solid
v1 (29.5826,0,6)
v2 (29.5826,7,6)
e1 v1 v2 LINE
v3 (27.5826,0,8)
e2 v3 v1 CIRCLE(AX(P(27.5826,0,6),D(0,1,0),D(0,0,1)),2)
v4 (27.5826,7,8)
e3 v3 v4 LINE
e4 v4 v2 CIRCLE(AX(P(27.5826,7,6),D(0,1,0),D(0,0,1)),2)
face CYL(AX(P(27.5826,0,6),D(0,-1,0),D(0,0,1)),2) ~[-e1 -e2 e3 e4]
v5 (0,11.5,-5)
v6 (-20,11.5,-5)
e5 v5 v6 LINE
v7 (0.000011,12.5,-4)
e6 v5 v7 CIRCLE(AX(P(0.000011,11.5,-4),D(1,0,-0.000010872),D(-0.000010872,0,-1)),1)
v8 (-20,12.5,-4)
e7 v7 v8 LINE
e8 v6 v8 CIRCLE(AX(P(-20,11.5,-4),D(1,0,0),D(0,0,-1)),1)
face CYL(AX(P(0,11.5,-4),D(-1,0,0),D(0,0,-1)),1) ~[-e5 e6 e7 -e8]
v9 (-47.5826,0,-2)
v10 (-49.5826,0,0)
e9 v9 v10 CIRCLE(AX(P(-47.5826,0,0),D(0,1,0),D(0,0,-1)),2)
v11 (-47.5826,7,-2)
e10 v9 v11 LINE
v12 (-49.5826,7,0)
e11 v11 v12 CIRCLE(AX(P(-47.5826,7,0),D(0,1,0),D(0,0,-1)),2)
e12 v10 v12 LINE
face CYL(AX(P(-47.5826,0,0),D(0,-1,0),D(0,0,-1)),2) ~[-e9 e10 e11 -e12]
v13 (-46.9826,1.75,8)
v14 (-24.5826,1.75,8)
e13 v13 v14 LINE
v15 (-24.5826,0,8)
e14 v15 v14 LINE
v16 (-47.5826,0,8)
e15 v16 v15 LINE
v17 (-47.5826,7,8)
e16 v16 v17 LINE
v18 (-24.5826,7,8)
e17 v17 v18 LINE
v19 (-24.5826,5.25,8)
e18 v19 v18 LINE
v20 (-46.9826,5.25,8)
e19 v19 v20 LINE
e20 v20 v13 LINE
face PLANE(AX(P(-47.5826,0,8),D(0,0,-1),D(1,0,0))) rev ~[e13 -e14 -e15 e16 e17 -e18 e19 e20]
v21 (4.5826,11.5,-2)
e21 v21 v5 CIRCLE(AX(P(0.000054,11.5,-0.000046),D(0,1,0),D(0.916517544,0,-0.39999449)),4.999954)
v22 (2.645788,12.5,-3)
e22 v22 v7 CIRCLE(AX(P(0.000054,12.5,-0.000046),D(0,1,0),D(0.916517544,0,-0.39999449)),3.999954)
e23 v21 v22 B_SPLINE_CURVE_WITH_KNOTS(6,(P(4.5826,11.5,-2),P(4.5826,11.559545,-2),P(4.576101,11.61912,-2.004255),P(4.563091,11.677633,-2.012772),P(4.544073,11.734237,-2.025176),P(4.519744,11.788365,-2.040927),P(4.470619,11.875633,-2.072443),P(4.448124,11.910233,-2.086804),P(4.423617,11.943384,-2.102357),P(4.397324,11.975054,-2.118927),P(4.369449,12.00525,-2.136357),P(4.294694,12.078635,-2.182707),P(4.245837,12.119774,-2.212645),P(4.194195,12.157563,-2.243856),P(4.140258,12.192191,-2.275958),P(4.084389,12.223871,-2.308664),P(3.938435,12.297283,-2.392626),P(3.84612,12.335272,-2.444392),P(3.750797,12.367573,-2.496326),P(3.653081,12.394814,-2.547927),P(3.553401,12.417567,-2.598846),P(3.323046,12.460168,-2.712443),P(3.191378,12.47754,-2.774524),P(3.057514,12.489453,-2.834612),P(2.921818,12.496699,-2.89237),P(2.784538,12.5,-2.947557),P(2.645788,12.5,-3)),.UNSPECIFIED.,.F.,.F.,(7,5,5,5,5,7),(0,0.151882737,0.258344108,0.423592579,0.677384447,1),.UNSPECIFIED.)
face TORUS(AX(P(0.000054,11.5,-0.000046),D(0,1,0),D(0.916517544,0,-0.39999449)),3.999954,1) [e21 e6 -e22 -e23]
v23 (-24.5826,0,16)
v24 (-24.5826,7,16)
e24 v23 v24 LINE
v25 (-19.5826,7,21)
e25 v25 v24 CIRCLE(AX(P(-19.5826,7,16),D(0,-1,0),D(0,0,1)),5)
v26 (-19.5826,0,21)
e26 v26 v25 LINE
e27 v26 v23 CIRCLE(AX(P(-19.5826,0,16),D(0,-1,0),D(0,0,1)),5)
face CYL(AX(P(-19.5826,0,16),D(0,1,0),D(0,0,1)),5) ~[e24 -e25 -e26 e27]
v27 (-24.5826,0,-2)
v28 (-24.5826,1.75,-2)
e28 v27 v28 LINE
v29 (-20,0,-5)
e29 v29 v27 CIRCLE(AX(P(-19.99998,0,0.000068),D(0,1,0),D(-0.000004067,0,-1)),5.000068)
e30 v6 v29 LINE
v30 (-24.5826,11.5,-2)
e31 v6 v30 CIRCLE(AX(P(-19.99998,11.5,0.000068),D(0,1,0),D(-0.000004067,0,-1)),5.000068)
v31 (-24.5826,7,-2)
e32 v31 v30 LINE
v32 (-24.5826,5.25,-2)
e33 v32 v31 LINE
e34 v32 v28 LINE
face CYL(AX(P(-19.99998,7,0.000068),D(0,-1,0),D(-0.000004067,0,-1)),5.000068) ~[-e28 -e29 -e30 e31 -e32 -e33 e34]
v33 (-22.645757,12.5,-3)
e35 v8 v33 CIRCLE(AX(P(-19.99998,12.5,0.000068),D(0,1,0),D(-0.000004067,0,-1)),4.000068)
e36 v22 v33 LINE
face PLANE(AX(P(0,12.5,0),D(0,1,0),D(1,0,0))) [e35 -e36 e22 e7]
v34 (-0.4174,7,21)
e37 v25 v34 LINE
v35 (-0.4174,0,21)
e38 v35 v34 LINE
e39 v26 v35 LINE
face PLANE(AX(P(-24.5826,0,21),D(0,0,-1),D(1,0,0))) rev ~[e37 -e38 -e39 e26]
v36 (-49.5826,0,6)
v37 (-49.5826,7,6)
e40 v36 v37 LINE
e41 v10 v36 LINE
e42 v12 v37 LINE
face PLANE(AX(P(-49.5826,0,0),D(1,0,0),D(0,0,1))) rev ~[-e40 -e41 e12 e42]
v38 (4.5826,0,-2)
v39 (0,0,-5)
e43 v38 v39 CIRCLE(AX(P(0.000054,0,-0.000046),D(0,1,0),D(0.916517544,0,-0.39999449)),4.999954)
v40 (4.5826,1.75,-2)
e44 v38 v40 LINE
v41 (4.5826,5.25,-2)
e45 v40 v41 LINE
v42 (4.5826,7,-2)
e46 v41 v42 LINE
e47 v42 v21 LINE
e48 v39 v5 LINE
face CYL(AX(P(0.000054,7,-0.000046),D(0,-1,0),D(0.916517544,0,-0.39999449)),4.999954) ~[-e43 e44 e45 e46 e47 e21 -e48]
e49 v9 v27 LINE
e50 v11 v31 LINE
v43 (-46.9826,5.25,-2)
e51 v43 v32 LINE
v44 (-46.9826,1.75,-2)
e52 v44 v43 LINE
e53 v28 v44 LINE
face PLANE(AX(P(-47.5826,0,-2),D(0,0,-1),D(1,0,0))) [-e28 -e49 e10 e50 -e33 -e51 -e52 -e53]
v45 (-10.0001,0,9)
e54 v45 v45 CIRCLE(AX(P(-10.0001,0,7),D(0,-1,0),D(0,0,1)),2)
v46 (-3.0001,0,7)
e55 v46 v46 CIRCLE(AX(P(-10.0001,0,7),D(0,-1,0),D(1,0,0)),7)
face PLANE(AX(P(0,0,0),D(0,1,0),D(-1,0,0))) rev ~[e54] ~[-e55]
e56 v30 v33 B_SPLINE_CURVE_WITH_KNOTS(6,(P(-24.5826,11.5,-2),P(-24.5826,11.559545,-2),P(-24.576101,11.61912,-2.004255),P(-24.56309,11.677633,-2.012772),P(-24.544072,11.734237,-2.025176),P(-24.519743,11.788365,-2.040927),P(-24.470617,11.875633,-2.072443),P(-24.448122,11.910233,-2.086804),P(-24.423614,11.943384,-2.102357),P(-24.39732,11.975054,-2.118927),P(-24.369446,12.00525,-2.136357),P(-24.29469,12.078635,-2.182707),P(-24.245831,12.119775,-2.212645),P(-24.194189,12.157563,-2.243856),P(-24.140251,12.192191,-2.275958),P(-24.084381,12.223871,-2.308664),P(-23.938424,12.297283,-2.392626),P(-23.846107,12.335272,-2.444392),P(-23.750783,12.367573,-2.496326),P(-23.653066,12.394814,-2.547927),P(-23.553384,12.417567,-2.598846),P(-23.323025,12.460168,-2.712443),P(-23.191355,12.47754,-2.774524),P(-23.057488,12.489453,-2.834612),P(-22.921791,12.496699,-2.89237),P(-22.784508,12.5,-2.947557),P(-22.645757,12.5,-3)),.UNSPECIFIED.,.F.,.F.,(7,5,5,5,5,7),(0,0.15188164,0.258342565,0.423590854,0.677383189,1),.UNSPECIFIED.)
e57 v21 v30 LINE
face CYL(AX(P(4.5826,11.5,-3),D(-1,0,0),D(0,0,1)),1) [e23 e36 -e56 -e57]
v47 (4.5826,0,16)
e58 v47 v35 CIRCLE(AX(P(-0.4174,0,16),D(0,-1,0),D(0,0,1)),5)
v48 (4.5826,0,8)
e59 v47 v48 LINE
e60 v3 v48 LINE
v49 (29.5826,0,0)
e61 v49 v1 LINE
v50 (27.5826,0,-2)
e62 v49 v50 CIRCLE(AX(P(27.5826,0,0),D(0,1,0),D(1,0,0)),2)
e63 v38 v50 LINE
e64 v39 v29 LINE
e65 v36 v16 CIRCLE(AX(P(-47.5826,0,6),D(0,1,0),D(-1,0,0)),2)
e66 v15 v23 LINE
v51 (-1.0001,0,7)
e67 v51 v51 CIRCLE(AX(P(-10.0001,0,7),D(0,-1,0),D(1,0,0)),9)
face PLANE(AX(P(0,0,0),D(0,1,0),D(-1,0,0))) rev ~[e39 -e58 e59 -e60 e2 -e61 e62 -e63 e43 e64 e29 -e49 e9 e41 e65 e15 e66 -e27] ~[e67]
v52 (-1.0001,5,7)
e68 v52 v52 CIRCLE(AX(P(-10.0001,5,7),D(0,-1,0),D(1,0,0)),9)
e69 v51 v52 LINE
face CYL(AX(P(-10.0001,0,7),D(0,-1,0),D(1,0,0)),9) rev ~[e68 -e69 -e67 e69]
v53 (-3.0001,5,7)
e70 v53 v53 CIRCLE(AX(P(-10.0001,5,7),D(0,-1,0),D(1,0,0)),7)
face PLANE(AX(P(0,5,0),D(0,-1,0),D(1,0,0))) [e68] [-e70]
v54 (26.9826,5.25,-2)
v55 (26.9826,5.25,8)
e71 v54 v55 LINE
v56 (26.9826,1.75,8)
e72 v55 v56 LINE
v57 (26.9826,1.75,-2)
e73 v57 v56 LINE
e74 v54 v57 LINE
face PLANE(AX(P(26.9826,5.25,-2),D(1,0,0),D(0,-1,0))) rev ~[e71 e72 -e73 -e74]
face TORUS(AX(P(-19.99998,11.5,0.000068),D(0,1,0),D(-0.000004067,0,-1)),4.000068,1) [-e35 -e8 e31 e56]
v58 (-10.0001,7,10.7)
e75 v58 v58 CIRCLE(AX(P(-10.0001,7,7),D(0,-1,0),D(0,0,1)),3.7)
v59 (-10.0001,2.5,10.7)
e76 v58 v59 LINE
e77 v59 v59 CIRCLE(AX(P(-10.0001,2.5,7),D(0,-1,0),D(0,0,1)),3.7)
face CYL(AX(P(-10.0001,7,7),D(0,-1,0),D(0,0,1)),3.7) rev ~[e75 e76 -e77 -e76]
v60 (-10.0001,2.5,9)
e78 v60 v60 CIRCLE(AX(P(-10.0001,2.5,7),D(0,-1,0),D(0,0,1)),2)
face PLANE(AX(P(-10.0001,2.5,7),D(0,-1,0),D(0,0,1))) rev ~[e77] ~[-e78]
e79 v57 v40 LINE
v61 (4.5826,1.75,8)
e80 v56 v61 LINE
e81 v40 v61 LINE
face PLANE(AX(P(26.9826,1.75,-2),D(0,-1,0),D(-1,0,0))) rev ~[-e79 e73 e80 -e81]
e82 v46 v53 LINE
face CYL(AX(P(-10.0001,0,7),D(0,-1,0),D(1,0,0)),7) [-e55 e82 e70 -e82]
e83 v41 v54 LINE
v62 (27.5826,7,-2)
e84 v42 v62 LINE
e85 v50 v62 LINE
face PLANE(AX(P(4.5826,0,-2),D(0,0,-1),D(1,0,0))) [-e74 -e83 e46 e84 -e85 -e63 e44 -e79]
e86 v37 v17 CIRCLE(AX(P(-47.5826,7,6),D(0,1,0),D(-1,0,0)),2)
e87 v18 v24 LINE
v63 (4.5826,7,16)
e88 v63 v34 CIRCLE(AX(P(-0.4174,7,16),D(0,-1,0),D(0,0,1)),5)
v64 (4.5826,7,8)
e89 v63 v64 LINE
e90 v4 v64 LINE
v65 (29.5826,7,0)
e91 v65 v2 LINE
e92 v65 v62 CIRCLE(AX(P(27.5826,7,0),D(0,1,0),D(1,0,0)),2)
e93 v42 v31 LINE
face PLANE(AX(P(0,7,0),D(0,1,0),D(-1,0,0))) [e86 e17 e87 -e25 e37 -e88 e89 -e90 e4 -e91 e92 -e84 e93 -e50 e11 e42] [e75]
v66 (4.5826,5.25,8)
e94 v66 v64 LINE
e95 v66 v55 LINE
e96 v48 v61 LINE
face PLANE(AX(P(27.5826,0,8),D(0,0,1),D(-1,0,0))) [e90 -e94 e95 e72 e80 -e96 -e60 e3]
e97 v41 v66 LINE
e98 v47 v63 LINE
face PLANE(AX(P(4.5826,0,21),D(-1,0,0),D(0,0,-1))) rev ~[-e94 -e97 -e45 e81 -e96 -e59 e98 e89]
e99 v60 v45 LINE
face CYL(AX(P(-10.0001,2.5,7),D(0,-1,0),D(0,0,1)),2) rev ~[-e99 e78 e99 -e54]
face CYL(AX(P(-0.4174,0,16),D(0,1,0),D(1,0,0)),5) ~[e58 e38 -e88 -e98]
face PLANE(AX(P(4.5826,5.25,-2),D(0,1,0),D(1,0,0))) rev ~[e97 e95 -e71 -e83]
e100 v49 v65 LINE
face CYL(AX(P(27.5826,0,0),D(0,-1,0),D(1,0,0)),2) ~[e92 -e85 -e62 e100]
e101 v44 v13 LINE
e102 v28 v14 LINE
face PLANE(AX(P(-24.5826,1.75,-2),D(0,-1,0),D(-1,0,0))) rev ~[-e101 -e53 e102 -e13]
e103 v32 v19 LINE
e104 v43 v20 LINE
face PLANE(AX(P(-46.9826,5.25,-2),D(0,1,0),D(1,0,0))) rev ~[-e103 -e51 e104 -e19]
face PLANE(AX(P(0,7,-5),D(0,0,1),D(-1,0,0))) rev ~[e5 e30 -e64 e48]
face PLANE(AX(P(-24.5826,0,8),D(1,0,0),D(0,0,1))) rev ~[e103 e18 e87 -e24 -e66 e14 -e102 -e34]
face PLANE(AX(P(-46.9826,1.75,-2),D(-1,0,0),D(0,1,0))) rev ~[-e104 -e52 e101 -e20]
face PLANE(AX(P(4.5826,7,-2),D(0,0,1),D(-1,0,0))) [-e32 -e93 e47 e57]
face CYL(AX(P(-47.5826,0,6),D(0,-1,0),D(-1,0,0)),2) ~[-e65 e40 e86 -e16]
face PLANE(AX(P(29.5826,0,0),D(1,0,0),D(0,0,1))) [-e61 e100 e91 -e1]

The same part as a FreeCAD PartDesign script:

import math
import FreeCAD as App
import Part
import Sketcher


def edges_at(feature, points):
    """Names of the edges that pass closest to the given points."""
    edges = feature.Shape.Edges
    near = lambda p: min(range(len(edges)), key=lambda i: edges[i].distToShape(Part.Vertex(*p))[0])
    return sorted({f"Edge{near(p) + 1}" for p in points})


def add_polygon(sketch, points):
    """Adds a closed chain of lines whose ends are joined by coincident constraints."""
    first, n = sketch.GeometryCount, len(points)
    for a, b in zip(points, points[1:] + points[:1]):
        sketch.addGeometry(Part.LineSegment(App.Vector(*a, 0), App.Vector(*b, 0)), False)
    for i in range(n):
        sketch.addConstraint(Sketcher.Constraint("Coincident", first + i, 2, first + (i + 1) % n, 1))

doc = App.newDocument("Part")
body = doc.addObject("PartDesign::Body", "Body")

# Sketch on XZ plane
sketch1 = doc.addObject("Sketcher::SketchObject", "Sketch")
body.addObject(sketch1)
sketch1.AttachmentSupport = (doc.XZ_Plane, [""])
sketch1.MapMode = "FlatFace"
sketch1.addGeometry(Part.LineSegment(App.Vector(27.6, -2, 0), App.Vector(4.6, -2, 0)), False)
sketch1.addGeometry(Part.ArcOfCircle(Part.Circle(App.Vector(0, 0, 0), App.Vector(0, 0, 1), 5), math.radians(-90), math.radians(-24)), False)
sketch1.addGeometry(Part.LineSegment(App.Vector(0, -5, 0), App.Vector(-20, -5, 0)), False)
sketch1.addGeometry(Part.ArcOfCircle(Part.Circle(App.Vector(-20, 0, 0), App.Vector(0, 0, 1), 5), math.radians(-156), math.radians(-90)), False)
sketch1.addGeometry(Part.LineSegment(App.Vector(-24.6, -2, 0), App.Vector(-47.6, -2, 0)), False)
sketch1.addGeometry(Part.ArcOfCircle(Part.Circle(App.Vector(-47.6, 0, 0), App.Vector(0, 0, 1), 2), math.radians(180), math.radians(270)), False)
sketch1.addGeometry(Part.LineSegment(App.Vector(-49.6, 0, 0), App.Vector(-49.6, 6, 0)), False)
sketch1.addGeometry(Part.ArcOfCircle(Part.Circle(App.Vector(-47.6, 6, 0), App.Vector(0, 0, 1), 2), math.radians(90), math.radians(180)), False)
sketch1.addGeometry(Part.LineSegment(App.Vector(-47.6, 8, 0), App.Vector(-24.6, 8, 0)), False)
sketch1.addGeometry(Part.LineSegment(App.Vector(-24.6, 8, 0), App.Vector(-24.6, 21, 0)), False)
sketch1.addGeometry(Part.LineSegment(App.Vector(-24.6, 21, 0), App.Vector(4.6, 21, 0)), False)
sketch1.addGeometry(Part.LineSegment(App.Vector(4.6, 21, 0), App.Vector(4.6, 8, 0)), False)
sketch1.addGeometry(Part.LineSegment(App.Vector(4.6, 8, 0), App.Vector(27.6, 8, 0)), False)
sketch1.addGeometry(Part.ArcOfCircle(Part.Circle(App.Vector(27.6, 6, 0), App.Vector(0, 0, 1), 2), math.radians(0), math.radians(90)), False)
sketch1.addGeometry(Part.LineSegment(App.Vector(29.6, 6, 0), App.Vector(29.6, 0, 0)), False)
sketch1.addGeometry(Part.ArcOfCircle(Part.Circle(App.Vector(27.6, 0, 0), App.Vector(0, 0, 1), 2), math.radians(-90), math.radians(0)), False)
sketch1.addConstraint(Sketcher.Constraint("Coincident", 0, 2, 1, 2))
sketch1.addConstraint(Sketcher.Constraint("Tangent", 1, 1, 2, 1))
sketch1.addConstraint(Sketcher.Constraint("Tangent", 2, 2, 3, 2))
sketch1.addConstraint(Sketcher.Constraint("Coincident", 3, 1, 4, 1))
sketch1.addConstraint(Sketcher.Constraint("Tangent", 4, 2, 5, 2))
sketch1.addConstraint(Sketcher.Constraint("Tangent", 5, 1, 6, 1))
sketch1.addConstraint(Sketcher.Constraint("Tangent", 6, 2, 7, 2))
sketch1.addConstraint(Sketcher.Constraint("Tangent", 7, 1, 8, 1))
sketch1.addConstraint(Sketcher.Constraint("Coincident", 8, 2, 9, 1))
sketch1.addConstraint(Sketcher.Constraint("Coincident", 9, 2, 10, 1))
sketch1.addConstraint(Sketcher.Constraint("Coincident", 10, 2, 11, 1))
sketch1.addConstraint(Sketcher.Constraint("Coincident", 11, 2, 12, 1))
sketch1.addConstraint(Sketcher.Constraint("Tangent", 12, 2, 13, 2))
sketch1.addConstraint(Sketcher.Constraint("Tangent", 13, 1, 14, 1))
sketch1.addConstraint(Sketcher.Constraint("Tangent", 14, 2, 15, 2))
sketch1.addConstraint(Sketcher.Constraint("Tangent", 15, 1, 0, 1))
sketch1.addConstraint(Sketcher.Constraint("Horizontal", 0))
sketch1.addConstraint(Sketcher.Constraint("Horizontal", 2))
sketch1.addConstraint(Sketcher.Constraint("Horizontal", 4))
sketch1.addConstraint(Sketcher.Constraint("Vertical", 6))
sketch1.addConstraint(Sketcher.Constraint("Horizontal", 8))
sketch1.addConstraint(Sketcher.Constraint("Vertical", 9))
sketch1.addConstraint(Sketcher.Constraint("Horizontal", 10))
sketch1.addConstraint(Sketcher.Constraint("Vertical", 11))
sketch1.addConstraint(Sketcher.Constraint("Horizontal", 12))
sketch1.addConstraint(Sketcher.Constraint("Vertical", 14))
sketch1.addConstraint(Sketcher.Constraint("Coincident", 1, 3, -1, 1))
sketch1.addConstraint(Sketcher.Constraint("Equal", 1, 3))
sketch1.addConstraint(Sketcher.Constraint("Equal", 5, 7))
sketch1.addConstraint(Sketcher.Constraint("Equal", 7, 13))
sketch1.addConstraint(Sketcher.Constraint("Equal", 13, 15))
sketch1.addConstraint(Sketcher.Constraint("PointOnObject", 5, 3, -1))
sketch1.addConstraint(Sketcher.Constraint("PointOnObject", 15, 3, -1))
sketch1.addConstraint(Sketcher.Constraint("Horizontal", 7, 3, 13, 3))
sketch1.addConstraint(Sketcher.Constraint("Vertical", 3, 1, 8, 2))
sketch1.addConstraint(Sketcher.Constraint("Vertical", 0, 2, 10, 2))
sketch1.addConstraint(Sketcher.Constraint("Equal", 0, 4))
sketch1.addConstraint(Sketcher.Constraint("Radius", 1, 5.0))
sketch1.addConstraint(Sketcher.Constraint("Radius", 5, 2.0))
sketch1.addConstraint(Sketcher.Constraint("DistanceX", 2, 2, 2, 1, 20.0))
sketch1.addConstraint(Sketcher.Constraint("DistanceX", 5, 1, 3, 1, 25.0))
sketch1.addConstraint(Sketcher.Constraint("DistanceY", 4, 2, 7, 1, 10.0))
sketch1.addConstraint(Sketcher.Constraint("DistanceY", 2, 2, 9, 2, 26.0))
pad1 = doc.addObject("PartDesign::Pad", "Pad")
body.addObject(pad1)
pad1.Profile = sketch1
pad1.Length = 7
pad1.Reversed = True
doc.recompute()

fillet = doc.addObject("PartDesign::Fillet", "Fillet")
body.addObject(fillet)
fillet.Base = (pad1, edges_at(pad1, [(-24.583, 3.5, 21), (4.583, 3.5, 21)]))
fillet.Radius = 5

# Sketch on XY plane
sketch2 = doc.addObject("Sketcher::SketchObject", "Sketch001")
body.addObject(sketch2)
sketch2.AttachmentSupport = (doc.XY_Plane, [""])
sketch2.MapMode = "FlatFace"
sketch2.AttachmentOffset = App.Placement(App.Vector(0, 0, -2), App.Rotation())
add_polygon(sketch2, [(27, 1.8), (4.6, 1.8), (4.6, 5.2), (27, 5.2)])  # lines 0-3
add_polygon(sketch2, [(-24.6, 5.2), (-24.6, 1.8), (-47, 1.8), (-47, 5.2)])  # lines 4-7
sketch2.addConstraint(Sketcher.Constraint("Horizontal", 0))
sketch2.addConstraint(Sketcher.Constraint("Vertical", 1))
sketch2.addConstraint(Sketcher.Constraint("Horizontal", 2))
sketch2.addConstraint(Sketcher.Constraint("Vertical", 3))
sketch2.addConstraint(Sketcher.Constraint("Vertical", 4))
sketch2.addConstraint(Sketcher.Constraint("Horizontal", 5))
sketch2.addConstraint(Sketcher.Constraint("Vertical", 6))
sketch2.addConstraint(Sketcher.Constraint("Horizontal", 7))
sketch2.addConstraint(Sketcher.Constraint("Horizontal", 3, 2, 4, 2))
sketch2.addConstraint(Sketcher.Constraint("Horizontal", 2, 2, 6, 2))
sketch2.addConstraint(Sketcher.Constraint("Equal", 2, 5))
sketch2.addConstraint(Sketcher.Constraint("DistanceX", 0, 2, 0, 1, 22.4))
sketch2.addConstraint(Sketcher.Constraint("DistanceY", 1, 1, 1, 2, 3.5))
sketch2.addConstraint(Sketcher.Constraint("DistanceY", -1, 1, 0, 2, 1.75))
sketch2.addConstraint(Sketcher.Constraint("DistanceX", -1, 1, 0, 2, 4.5826))
sketch2.addConstraint(Sketcher.Constraint("DistanceX", 4, 2, -1, 1, 24.5826))
pocket1 = doc.addObject("PartDesign::Pocket", "Pocket")
body.addObject(pocket1)
pocket1.Profile = sketch2
pocket1.Type = "UpToFirst"
pocket1.Reversed = True

# Sketch on XZ plane
sketch3 = doc.addObject("Sketcher::SketchObject", "Sketch002")
body.addObject(sketch3)
sketch3.AttachmentSupport = (doc.XZ_Plane, [""])
sketch3.MapMode = "FlatFace"
sketch3.addGeometry(Part.Circle(App.Vector(-10, 7, 0), App.Vector(0, 0, 1), 9), False)
sketch3.addGeometry(Part.Circle(App.Vector(-10, 7, 0), App.Vector(0, 0, 1), 7), False)
sketch3.addConstraint(Sketcher.Constraint("Coincident", 1, 3, 0, 3))
sketch3.addConstraint(Sketcher.Constraint("Diameter", 0, 18.0))
sketch3.addConstraint(Sketcher.Constraint("Diameter", 1, 14.0))
sketch3.addConstraint(Sketcher.Constraint("DistanceX", 0, 3, -1, 1, 10.0))
sketch3.addConstraint(Sketcher.Constraint("DistanceY", -1, 1, 0, 3, 7.0))
pocket2 = doc.addObject("PartDesign::Pocket", "Pocket001")
body.addObject(pocket2)
pocket2.Profile = sketch3
pocket2.Length = 5

# Sketch on XZ plane
sketch4 = doc.addObject("Sketcher::SketchObject", "Sketch003")
body.addObject(sketch4)
sketch4.AttachmentSupport = (doc.XZ_Plane, [""])
sketch4.MapMode = "FlatFace"
sketch4.AttachmentOffset = App.Placement(App.Vector(0, 0, -7), App.Rotation())
sketch4.addGeometry(Part.LineSegment(App.Vector(-25, -2, 0), App.Vector(5, -2, 0)), False)
sketch4.addGeometry(Part.ArcOfCircle(Part.Circle(App.Vector(0, 0, 0), App.Vector(0, 0, 1), 5), math.radians(-90), math.radians(-24)), False)
sketch4.addGeometry(Part.LineSegment(App.Vector(0, -5, 0), App.Vector(-20, -5, 0)), False)
sketch4.addGeometry(Part.ArcOfCircle(Part.Circle(App.Vector(-20, 0, 0), App.Vector(0, 0, 1), 5), math.radians(-156), math.radians(-90)), False)
sketch4.addConstraint(Sketcher.Constraint("Coincident", 0, 2, 1, 2))
sketch4.addConstraint(Sketcher.Constraint("Tangent", 1, 1, 2, 1))
sketch4.addConstraint(Sketcher.Constraint("Tangent", 2, 2, 3, 2))
sketch4.addConstraint(Sketcher.Constraint("Coincident", 3, 1, 0, 1))
sketch4.addConstraint(Sketcher.Constraint("Horizontal", 0))
sketch4.addConstraint(Sketcher.Constraint("Horizontal", 2))
sketch4.addConstraint(Sketcher.Constraint("Coincident", 1, 3, -1, 1))
sketch4.addConstraint(Sketcher.Constraint("Equal", 1, 3))
sketch4.addConstraint(Sketcher.Constraint("Radius", 1, 5.0))
sketch4.addConstraint(Sketcher.Constraint("DistanceX", 2, 2, 2, 1, 20.0))
sketch4.addConstraint(Sketcher.Constraint("DistanceY", 0, 2, -1, 1, 2.0))
pad2 = doc.addObject("PartDesign::Pad", "Pad001")
body.addObject(pad2)
pad2.Profile = sketch4
pad2.Length = 5.5
pad2.Reversed = True
doc.recompute()

fillet2 = doc.addObject("PartDesign::Fillet", "Fillet001")
body.addObject(fillet2)
fillet2.Base = (pad2, edges_at(pad2, [
    (-22.739, 12.5, -4.183),
    (2.739, 12.5, -4.183),
    (-10, 12.5, -5),
    (-10, 12.5, -2),
]))
fillet2.Radius = 1

# Sketch on XZ plane
sketch5 = doc.addObject("Sketcher::SketchObject", "Sketch004")
body.addObject(sketch5)
sketch5.AttachmentSupport = (doc.XZ_Plane, [""])
sketch5.MapMode = "FlatFace"
sketch5.AttachmentOffset = App.Placement(App.Vector(0, 0, -7), App.Rotation())
sketch5.addGeometry(Part.Circle(App.Vector(-10, 7, 0), App.Vector(0, 0, 1), 2), False)
sketch5.addConstraint(Sketcher.Constraint("Diameter", 0, 4.0))
sketch5.addConstraint(Sketcher.Constraint("DistanceX", 0, 3, -1, 1, 10.0))
sketch5.addConstraint(Sketcher.Constraint("DistanceY", -1, 1, 0, 3, 7.0))
doc.recompute()
hole = doc.addObject("PartDesign::Hole", "Hole")
body.addObject(hole)
hole.Profile = sketch5
hole.ThreadType = "None"
hole.Diameter = 4
hole.DepthType = "ThroughAll"
hole.HoleCutType = "Counterbore"
hole.HoleCutDiameter = 7.4
hole.HoleCutDepth = 4.5
hole.Reversed = True

doc.recompute()
